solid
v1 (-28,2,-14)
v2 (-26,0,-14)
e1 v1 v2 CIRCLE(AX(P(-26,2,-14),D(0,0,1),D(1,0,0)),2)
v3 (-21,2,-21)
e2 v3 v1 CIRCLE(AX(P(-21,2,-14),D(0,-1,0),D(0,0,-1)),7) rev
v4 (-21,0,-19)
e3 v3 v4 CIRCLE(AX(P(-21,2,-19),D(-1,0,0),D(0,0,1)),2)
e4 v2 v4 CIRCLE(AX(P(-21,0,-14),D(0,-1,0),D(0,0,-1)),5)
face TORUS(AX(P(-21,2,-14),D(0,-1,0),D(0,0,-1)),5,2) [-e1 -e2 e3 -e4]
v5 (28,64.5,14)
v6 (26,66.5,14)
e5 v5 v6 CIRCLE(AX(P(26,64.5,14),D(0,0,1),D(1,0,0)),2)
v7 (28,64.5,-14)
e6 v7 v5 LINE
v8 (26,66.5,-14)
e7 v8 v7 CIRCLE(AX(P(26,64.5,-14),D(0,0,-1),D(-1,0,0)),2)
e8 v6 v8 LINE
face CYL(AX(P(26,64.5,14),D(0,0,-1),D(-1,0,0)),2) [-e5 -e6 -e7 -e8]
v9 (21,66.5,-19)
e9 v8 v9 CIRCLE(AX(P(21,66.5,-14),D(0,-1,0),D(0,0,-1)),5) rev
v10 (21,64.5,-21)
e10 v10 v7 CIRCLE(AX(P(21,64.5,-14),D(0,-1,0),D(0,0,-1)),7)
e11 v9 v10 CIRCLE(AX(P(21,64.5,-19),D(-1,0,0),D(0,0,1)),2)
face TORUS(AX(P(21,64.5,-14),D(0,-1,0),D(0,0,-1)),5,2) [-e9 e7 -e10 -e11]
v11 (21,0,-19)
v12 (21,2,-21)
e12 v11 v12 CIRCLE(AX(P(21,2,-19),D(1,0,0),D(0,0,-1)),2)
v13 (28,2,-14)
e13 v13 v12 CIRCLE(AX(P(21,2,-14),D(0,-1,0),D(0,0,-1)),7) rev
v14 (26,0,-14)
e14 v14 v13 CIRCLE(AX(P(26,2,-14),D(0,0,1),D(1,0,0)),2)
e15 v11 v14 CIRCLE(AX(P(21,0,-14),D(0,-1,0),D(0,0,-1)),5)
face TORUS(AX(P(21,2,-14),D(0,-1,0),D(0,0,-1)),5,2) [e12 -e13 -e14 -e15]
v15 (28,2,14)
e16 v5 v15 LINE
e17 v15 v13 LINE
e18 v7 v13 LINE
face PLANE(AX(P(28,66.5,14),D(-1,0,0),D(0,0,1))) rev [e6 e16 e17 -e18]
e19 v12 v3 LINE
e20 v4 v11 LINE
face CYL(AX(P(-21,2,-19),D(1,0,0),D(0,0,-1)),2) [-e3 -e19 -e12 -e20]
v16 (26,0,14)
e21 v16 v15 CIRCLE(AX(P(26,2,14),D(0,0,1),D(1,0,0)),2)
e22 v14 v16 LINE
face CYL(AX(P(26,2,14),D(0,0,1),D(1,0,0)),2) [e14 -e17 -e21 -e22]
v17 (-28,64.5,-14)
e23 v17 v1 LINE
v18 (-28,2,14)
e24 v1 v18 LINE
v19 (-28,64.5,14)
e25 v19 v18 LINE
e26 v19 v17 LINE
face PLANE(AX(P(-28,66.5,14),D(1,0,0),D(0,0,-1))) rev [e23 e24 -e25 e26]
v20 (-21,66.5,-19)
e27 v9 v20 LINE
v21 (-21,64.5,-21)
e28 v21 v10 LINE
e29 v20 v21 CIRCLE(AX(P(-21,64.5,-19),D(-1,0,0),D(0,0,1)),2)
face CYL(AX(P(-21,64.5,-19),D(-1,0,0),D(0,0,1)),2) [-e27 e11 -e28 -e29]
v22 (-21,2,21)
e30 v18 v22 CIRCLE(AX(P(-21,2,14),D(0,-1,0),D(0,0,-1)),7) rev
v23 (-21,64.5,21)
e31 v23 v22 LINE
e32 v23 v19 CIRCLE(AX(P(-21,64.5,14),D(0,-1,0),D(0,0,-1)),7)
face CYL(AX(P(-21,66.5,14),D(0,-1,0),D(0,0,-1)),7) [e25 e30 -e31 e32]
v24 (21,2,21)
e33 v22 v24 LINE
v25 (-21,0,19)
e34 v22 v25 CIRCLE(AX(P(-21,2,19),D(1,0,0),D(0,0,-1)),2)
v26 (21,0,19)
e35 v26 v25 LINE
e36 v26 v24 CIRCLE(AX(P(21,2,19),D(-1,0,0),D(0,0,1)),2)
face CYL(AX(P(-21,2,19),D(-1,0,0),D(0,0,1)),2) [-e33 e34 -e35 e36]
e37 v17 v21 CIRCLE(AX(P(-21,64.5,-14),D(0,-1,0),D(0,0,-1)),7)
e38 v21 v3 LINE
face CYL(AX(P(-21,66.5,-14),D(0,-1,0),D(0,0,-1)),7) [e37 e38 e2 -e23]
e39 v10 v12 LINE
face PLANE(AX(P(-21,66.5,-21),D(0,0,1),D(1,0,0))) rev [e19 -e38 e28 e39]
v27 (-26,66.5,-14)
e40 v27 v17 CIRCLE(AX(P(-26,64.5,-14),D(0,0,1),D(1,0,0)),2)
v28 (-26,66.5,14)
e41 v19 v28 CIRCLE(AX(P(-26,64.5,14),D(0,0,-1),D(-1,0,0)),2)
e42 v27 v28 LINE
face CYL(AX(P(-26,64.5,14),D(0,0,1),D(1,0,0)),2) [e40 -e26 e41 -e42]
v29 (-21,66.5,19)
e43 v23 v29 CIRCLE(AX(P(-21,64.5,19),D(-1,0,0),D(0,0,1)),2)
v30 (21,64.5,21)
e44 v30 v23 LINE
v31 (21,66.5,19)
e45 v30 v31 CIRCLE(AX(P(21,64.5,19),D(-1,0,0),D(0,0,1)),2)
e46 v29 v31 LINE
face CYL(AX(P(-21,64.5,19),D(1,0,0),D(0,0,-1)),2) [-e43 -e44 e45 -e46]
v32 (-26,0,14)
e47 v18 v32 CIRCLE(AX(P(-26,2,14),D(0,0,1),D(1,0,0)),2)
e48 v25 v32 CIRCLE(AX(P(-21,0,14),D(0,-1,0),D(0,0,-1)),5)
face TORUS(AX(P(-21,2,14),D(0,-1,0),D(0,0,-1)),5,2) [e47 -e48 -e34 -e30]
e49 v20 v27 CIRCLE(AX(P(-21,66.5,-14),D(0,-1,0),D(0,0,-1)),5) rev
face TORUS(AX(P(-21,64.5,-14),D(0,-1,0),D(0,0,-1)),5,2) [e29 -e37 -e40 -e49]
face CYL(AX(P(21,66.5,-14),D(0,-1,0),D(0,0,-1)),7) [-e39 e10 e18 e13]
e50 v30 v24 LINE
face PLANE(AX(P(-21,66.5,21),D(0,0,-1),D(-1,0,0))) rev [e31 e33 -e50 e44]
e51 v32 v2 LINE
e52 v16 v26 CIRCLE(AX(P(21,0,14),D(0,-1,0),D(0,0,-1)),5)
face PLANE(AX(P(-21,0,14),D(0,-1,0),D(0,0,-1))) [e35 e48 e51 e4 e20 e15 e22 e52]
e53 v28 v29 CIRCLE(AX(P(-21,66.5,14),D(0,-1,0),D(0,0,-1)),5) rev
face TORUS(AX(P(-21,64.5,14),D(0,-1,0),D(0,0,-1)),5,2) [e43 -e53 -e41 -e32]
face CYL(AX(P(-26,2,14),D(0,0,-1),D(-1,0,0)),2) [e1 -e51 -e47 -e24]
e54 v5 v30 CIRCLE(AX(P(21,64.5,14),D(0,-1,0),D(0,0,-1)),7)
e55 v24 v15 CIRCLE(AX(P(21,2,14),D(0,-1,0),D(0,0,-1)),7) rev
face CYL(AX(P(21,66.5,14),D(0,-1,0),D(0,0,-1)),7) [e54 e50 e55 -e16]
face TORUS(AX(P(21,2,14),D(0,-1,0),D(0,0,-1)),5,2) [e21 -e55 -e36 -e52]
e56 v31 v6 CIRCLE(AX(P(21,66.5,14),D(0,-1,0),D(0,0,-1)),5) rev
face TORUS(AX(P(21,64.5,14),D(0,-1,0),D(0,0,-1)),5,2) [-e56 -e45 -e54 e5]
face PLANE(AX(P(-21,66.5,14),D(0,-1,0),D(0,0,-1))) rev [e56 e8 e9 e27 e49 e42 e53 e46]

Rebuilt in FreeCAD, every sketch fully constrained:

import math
import FreeCAD as App
import Part
import Sketcher
from FreeCAD import Vector
Q = App.Units.Quantity


def edges_at(feature, points):
    """Names of the edges that pass closest to the given points."""
    edges = feature.Shape.Edges
    near = lambda p: min(range(len(edges)), key=lambda i: edges[i].distToShape(Part.Vertex(*p))[0])
    return sorted({f"Edge{near(p) + 1}" for p in points})

doc = App.newDocument("Part")
body = doc.addObject("PartDesign::Body", "Body")

# Sketch on XZ plane
sketch1 = body.newObject("Sketcher::SketchObject", "Sketch")
sketch1.AttachmentSupport = (doc.getObject("XZ_Plane"), [""])
sketch1.MapMode = "FlatFace"
sketch1.addGeometry([
    Part.LineSegment(Vector(-21, 21, 0), Vector(21, 21, 0)),  # 0
    Part.ArcOfCircle(Part.Circle(Vector(21, 14, 0), Vector(0, 0, 1), 7), math.radians(0), math.radians(90)),  # 1
    Part.LineSegment(Vector(28, 14, 0), Vector(28, -14, 0)),  # 2
    Part.ArcOfCircle(Part.Circle(Vector(21, -14, 0), Vector(0, 0, 1), 7), math.radians(-90), math.radians(0)),  # 3
    Part.LineSegment(Vector(21, -21, 0), Vector(-21, -21, 0)),  # 4
    Part.ArcOfCircle(Part.Circle(Vector(-21, -14, 0), Vector(0, 0, 1), 7), math.radians(-180), math.radians(-90)),  # 5
    Part.LineSegment(Vector(-28, -14, 0), Vector(-28, 14, 0)),  # 6
    Part.ArcOfCircle(Part.Circle(Vector(-21, 14, 0), Vector(0, 0, 1), 7), math.radians(90), math.radians(180)),  # 7
], False)
sketch1.addConstraint([
    Sketcher.Constraint("Tangent", 0, 2, 1, 2),
    Sketcher.Constraint("Tangent", 1, 1, 2, 1),
    Sketcher.Constraint("Tangent", 2, 2, 3, 2),
    Sketcher.Constraint("Tangent", 3, 1, 4, 1),
    Sketcher.Constraint("Tangent", 4, 2, 5, 2),
    Sketcher.Constraint("Tangent", 5, 1, 6, 1),
    Sketcher.Constraint("Tangent", 6, 2, 7, 2),
    Sketcher.Constraint("Tangent", 7, 1, 0, 1),
    Sketcher.Constraint("Horizontal", 0),
    Sketcher.Constraint("Vertical", 2),
    Sketcher.Constraint("Horizontal", 4),
    Sketcher.Constraint("Vertical", 6),
    Sketcher.Constraint("Equal", 1, 3),
    Sketcher.Constraint("Equal", 3, 5),
    Sketcher.Constraint("Equal", 5, 7),
    Sketcher.Constraint("Symmetric", 1, 3, 5, 3, -1, 1),
    Sketcher.Constraint("Radius", 1, Q("7 mm")),
    Sketcher.Constraint("DistanceX", 0, 1, 0, 2, Q("42 mm")),
    Sketcher.Constraint("DistanceY", 2, 2, 2, 1, Q("28 mm")),
])
pad1 = body.newObject("PartDesign::Pad", "Pad")
pad1.Profile = sketch1
pad1.Length = 66.5
pad1.Reversed = True
doc.recompute()

fillet = body.newObject("PartDesign::Fillet", "Fillet")
fillet.Base = (pad1, edges_at(pad1, [
    (28, 0, 0),
    (25.95, 0, 18.95),
    (0, 0, 21),
    (-25.95, 0, 18.95),
    (25.95, 66.5, 18.95),
    (28, 66.5, 0),
    (25.95, 66.5, -18.95),
    (0, 66.5, -21),
    (-25.95, 66.5, -18.95),
    (-28, 66.5, 0),
    (-25.95, 66.5, 18.95),
    (-28, 0, 0),
    (0, 66.5, 21),
    (-25.95, 0, -18.95),
    (0, 0, -21),
    (25.95, 0, -18.95),
]))
fillet.Radius = 2

doc.recompute()
